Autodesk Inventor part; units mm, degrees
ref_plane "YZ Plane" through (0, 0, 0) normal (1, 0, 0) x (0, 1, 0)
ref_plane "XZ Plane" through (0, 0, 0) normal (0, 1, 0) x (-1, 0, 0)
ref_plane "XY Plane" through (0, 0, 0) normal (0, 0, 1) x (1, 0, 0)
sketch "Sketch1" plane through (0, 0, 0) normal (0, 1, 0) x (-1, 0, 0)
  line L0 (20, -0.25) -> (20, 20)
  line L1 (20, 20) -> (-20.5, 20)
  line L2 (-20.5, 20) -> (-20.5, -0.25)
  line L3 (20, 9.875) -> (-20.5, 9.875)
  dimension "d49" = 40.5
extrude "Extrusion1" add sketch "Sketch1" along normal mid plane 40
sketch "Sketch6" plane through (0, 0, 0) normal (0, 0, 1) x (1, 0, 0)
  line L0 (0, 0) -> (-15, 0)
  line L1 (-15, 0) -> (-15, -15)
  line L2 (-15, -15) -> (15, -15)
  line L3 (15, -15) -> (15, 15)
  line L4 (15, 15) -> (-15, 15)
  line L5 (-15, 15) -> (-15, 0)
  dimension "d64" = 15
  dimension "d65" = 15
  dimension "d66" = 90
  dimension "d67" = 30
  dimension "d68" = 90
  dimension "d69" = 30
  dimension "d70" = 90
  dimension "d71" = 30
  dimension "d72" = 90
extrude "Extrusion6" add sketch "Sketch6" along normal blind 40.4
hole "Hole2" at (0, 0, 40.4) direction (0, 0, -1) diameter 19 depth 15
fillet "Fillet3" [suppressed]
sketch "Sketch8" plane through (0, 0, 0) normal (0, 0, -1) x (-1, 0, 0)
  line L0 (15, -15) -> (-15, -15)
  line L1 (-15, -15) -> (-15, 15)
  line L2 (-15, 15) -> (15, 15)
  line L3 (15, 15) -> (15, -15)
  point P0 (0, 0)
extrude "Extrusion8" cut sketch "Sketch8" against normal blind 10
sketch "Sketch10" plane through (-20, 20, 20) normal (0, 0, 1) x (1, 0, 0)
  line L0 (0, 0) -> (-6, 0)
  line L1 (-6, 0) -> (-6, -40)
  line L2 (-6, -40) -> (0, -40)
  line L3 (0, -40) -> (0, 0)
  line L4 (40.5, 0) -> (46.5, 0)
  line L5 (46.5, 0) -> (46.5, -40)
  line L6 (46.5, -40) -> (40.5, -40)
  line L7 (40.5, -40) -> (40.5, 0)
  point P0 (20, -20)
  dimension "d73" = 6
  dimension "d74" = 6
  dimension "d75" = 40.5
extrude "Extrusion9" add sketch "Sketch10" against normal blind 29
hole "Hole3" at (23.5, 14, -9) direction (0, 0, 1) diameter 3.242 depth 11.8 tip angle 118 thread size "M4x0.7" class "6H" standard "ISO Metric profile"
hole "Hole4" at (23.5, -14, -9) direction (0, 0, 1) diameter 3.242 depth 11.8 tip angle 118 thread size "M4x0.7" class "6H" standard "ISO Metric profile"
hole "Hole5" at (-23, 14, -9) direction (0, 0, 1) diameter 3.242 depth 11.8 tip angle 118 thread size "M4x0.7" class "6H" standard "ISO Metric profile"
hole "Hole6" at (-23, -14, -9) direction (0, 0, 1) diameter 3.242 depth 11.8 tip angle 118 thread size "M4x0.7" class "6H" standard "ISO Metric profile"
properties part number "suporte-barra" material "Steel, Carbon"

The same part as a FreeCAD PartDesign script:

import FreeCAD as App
import Part
import Sketcher
from FreeCAD import Vector

doc = App.newDocument("Part")
params = doc.addObject("Spreadsheet::Sheet", "Params")
for row, (alias, value) in enumerate([
    ("sketch1_width", "40.5 mm"),
    ("pad1_length", "40 mm"),
    ("sketch2_width", "30 mm"),
    ("pad2_length", "40.4 mm"),
    ("sketch3_diameter", "19 mm"),
    ("hole_diameter", "19 mm"),
    ("hole_depth", "15 mm"),
    ("sketch4_width", "30 mm"),
    ("pocket1_length", "10 mm"),
    ("sketch5_width", "6 mm"),
    ("sketch5_height", "40 mm"),
    ("pad3_length", "29 mm"),
    ("hole2_diameter", "3.242 mm"),
    ("hole2_depth", "11.8 mm"),
    ("hole3_diameter", "3.242 mm"),
    ("hole3_depth", "11.8 mm"),
    ("hole4_diameter", "3.242 mm"),
    ("hole4_depth", "11.8 mm"),
    ("hole5_diameter", "3.242 mm"),
    ("hole5_depth", "11.8 mm"),
], start=1):
    params.set(f"A{row}", alias)
    params.set(f"B{row}", "=" + value)
    params.setAlias(f"B{row}", alias)

body = doc.addObject("PartDesign::Body", "Body")

# Sketch on XZ plane
sketch1 = doc.addObject("Sketcher::SketchObject", "Sketch")
body.addObject(sketch1)
sketch1.AttachmentSupport = (doc.XZ_Plane, [""])
sketch1.MapMode = "FlatFace"
sketch1.addGeometry([
    Part.LineSegment(Vector(20.5, 9.875, 0), Vector(-20, 9.875, 0)),
    Part.LineSegment(Vector(-20, 9.875, 0), Vector(-20, 20, 0)),
    Part.LineSegment(Vector(-20, 20, 0), Vector(20.5, 20, 0)),
    Part.LineSegment(Vector(20.5, 20, 0), Vector(20.5, 9.875, 0)),
], False)
sketch1.addConstraint([
    Sketcher.Constraint("Coincident", 0, 2, 1, 1),
    Sketcher.Constraint("Coincident", 1, 2, 2, 1),
    Sketcher.Constraint("Coincident", 2, 2, 3, 1),
    Sketcher.Constraint("Coincident", 3, 2, 0, 1),
    Sketcher.Constraint("Horizontal", 0),
    Sketcher.Constraint("Vertical", 1),
    Sketcher.Constraint("Horizontal", 2),
    Sketcher.Constraint("Vertical", 3),
    Sketcher.Constraint("DistanceX", 0, 2, 0, 1, 40.5),
    Sketcher.Constraint("DistanceX", 0, 2, -1, 1, 20.0),
    Sketcher.Constraint("DistanceY", -1, 1, 1, 2, 20.0),
    Sketcher.Constraint("DistanceY", 1, 1, 1, 2, 10.125),
])
sketch1.setExpression("Constraints[8]", "Params.sketch1_width")
pad1 = doc.addObject("PartDesign::Pad", "Pad")
body.addObject(pad1)
pad1.Profile = sketch1
pad1.setExpression("Length", "Params.pad1_length")
pad1.Midplane = True

# Sketch on XY plane
sketch2 = doc.addObject("Sketcher::SketchObject", "Sketch001")
body.addObject(sketch2)
sketch2.AttachmentSupport = (doc.XY_Plane, [""])
sketch2.MapMode = "FlatFace"
sketch2.addGeometry([
    Part.LineSegment(Vector(-15, 15, 0), Vector(-15, -15, 0)),
    Part.LineSegment(Vector(-15, -15, 0), Vector(15, -15, 0)),
    Part.LineSegment(Vector(15, -15, 0), Vector(15, 15, 0)),
    Part.LineSegment(Vector(15, 15, 0), Vector(-15, 15, 0)),
], False)
sketch2.addConstraint([
    Sketcher.Constraint("Coincident", 0, 2, 1, 1),
    Sketcher.Constraint("Coincident", 1, 2, 2, 1),
    Sketcher.Constraint("Coincident", 2, 2, 3, 1),
    Sketcher.Constraint("Coincident", 3, 2, 0, 1),
    Sketcher.Constraint("Vertical", 0),
    Sketcher.Constraint("Horizontal", 1),
    Sketcher.Constraint("Vertical", 2),
    Sketcher.Constraint("Horizontal", 3),
    Sketcher.Constraint("Symmetric", 0, 2, 2, 2, -1, 1),
    Sketcher.Constraint("Equal", 3, 0),
    Sketcher.Constraint("DistanceX", 1, 1, 1, 2, 30.0),
])
sketch2.setExpression("Constraints[10]", "Params.sketch2_width")
pad2 = doc.addObject("PartDesign::Pad", "Pad001")
body.addObject(pad2)
pad2.Profile = sketch2
pad2.setExpression("Length", "Params.pad2_length")

# Sketch on XY plane
sketch3 = doc.addObject("Sketcher::SketchObject", "Sketch002")
body.addObject(sketch3)
sketch3.AttachmentSupport = (doc.XY_Plane, [""])
sketch3.MapMode = "FlatFace"
sketch3.AttachmentOffset = App.Placement(Vector(0, 0, 40.4), App.Rotation())
sketch3.addGeometry(Part.Circle(Vector(0, 0, 0), Vector(0, 0, 1), 9.5), False)
sketch3.addConstraint([
    Sketcher.Constraint("Coincident", 0, 3, -1, 1),
    Sketcher.Constraint("Diameter", 0, 19.0),
])
sketch3.setExpression("Constraints[1]", "Params.sketch3_diameter")
doc.recompute()
hole = doc.addObject("PartDesign::Hole", "Hole")
body.addObject(hole)
hole.Profile = sketch3
hole.ThreadType = "None"
hole.setExpression("Diameter", "Params.hole_diameter")
hole.DepthType = "Dimension"
hole.setExpression("Depth", "Params.hole_depth")
hole.DrillPoint = "Flat"

# Sketch on XY plane
sketch4 = doc.addObject("Sketcher::SketchObject", "Sketch003")
body.addObject(sketch4)
sketch4.AttachmentSupport = (doc.XY_Plane, [""])
sketch4.MapMode = "FlatFace"
sketch4.addGeometry([
    Part.LineSegment(Vector(15, -15, 0), Vector(-15, -15, 0)),
    Part.LineSegment(Vector(-15, -15, 0), Vector(-15, 15, 0)),
    Part.LineSegment(Vector(-15, 15, 0), Vector(15, 15, 0)),
    Part.LineSegment(Vector(15, 15, 0), Vector(15, -15, 0)),
], False)
sketch4.addConstraint([
    Sketcher.Constraint("Coincident", 0, 2, 1, 1),
    Sketcher.Constraint("Coincident", 1, 2, 2, 1),
    Sketcher.Constraint("Coincident", 2, 2, 3, 1),
    Sketcher.Constraint("Coincident", 3, 2, 0, 1),
    Sketcher.Constraint("Horizontal", 0),
    Sketcher.Constraint("Vertical", 1),
    Sketcher.Constraint("Horizontal", 2),
    Sketcher.Constraint("Vertical", 3),
    Sketcher.Constraint("Symmetric", 0, 2, 2, 2, -1, 1),
    Sketcher.Constraint("Equal", 2, 1),
    Sketcher.Constraint("DistanceX", 0, 2, 0, 1, 30.0),
])
sketch4.setExpression("Constraints[10]", "Params.sketch4_width")
pocket1 = doc.addObject("PartDesign::Pocket", "Pocket")
body.addObject(pocket1)
pocket1.Profile = sketch4
pocket1.setExpression("Length", "Params.pocket1_length")
pocket1.Reversed = True

# Sketch on XY plane
sketch5 = doc.addObject("Sketcher::SketchObject", "Sketch004")
body.addObject(sketch5)
sketch5.AttachmentSupport = (doc.XY_Plane, [""])
sketch5.MapMode = "FlatFace"
sketch5.AttachmentOffset = App.Placement(Vector(0, 0, 20), App.Rotation())
sketch5.addGeometry([
    Part.LineSegment(Vector(-20, -20, 0), Vector(-20, 20, 0)),  # 0
    Part.LineSegment(Vector(-20, 20, 0), Vector(-26, 20, 0)),  # 1
    Part.LineSegment(Vector(-26, 20, 0), Vector(-26, -20, 0)),  # 2
    Part.LineSegment(Vector(-26, -20, 0), Vector(-20, -20, 0)),  # 3
    Part.LineSegment(Vector(26.5, 20, 0), Vector(20.5, 20, 0)),  # 4
    Part.LineSegment(Vector(20.5, 20, 0), Vector(20.5, -20, 0)),  # 5
    Part.LineSegment(Vector(20.5, -20, 0), Vector(26.5, -20, 0)),  # 6
    Part.LineSegment(Vector(26.5, -20, 0), Vector(26.5, 20, 0)),  # 7
], False)
sketch5.addConstraint([
    Sketcher.Constraint("Coincident", 0, 2, 1, 1),
    Sketcher.Constraint("Coincident", 1, 2, 2, 1),
    Sketcher.Constraint("Coincident", 2, 2, 3, 1),
    Sketcher.Constraint("Coincident", 3, 2, 0, 1),
    Sketcher.Constraint("Coincident", 4, 2, 5, 1),
    Sketcher.Constraint("Coincident", 5, 2, 6, 1),
    Sketcher.Constraint("Coincident", 6, 2, 7, 1),
    Sketcher.Constraint("Coincident", 7, 2, 4, 1),
    Sketcher.Constraint("Vertical", 0),
    Sketcher.Constraint("Horizontal", 1),
    Sketcher.Constraint("Vertical", 2),
    Sketcher.Constraint("Horizontal", 3),
    Sketcher.Constraint("Horizontal", 4),
    Sketcher.Constraint("Vertical", 5),
    Sketcher.Constraint("Horizontal", 6),
    Sketcher.Constraint("Vertical", 7),
    Sketcher.Constraint("Horizontal", 1, 2, 4, 2),
    Sketcher.Constraint("Horizontal", 3, 2, 5, 2),
    Sketcher.Constraint("Equal", 3, 4),
    Sketcher.Constraint("DistanceX", 1, 2, 1, 1, 6.0),
    Sketcher.Constraint("DistanceX", 0, 2, 4, 2, 40.5),
    Sketcher.Constraint("DistanceY", 0, 1, 0, 2, 40.0),
    Sketcher.Constraint("DistanceX", 0, 2, -1, 1, 20.0),
    Sketcher.Constraint("DistanceY", -1, 1, 0, 2, 20.0),
])
sketch5.setExpression("Constraints[19]", "Params.sketch5_width")
sketch5.setExpression("Constraints[21]", "Params.sketch5_height")
pad3 = doc.addObject("PartDesign::Pad", "Pad002")
body.addObject(pad3)
pad3.Profile = sketch5
pad3.setExpression("Length", "Params.pad3_length")
pad3.Reversed = True

# Sketch on XY plane
sketch6 = doc.addObject("Sketcher::SketchObject", "Sketch005")
body.addObject(sketch6)
sketch6.AttachmentSupport = (doc.XY_Plane, [""])
sketch6.MapMode = "FlatFace"
sketch6.AttachmentOffset = App.Placement(Vector(0, 0, -9), App.Rotation())
sketch6.addGeometry(Part.Circle(Vector(23.5, 14, 0), Vector(0, 0, 1), 1.621), False)
sketch6.addConstraint([
    Sketcher.Constraint("Diameter", 0, 3.242),
    Sketcher.Constraint("DistanceY", -1, 1, 0, 3, 14.0),
    Sketcher.Constraint("DistanceX", -1, 1, 0, 3, 23.5),
])
doc.recompute()
hole2 = doc.addObject("PartDesign::Hole", "Hole001")
body.addObject(hole2)
hole2.Profile = sketch6
hole2.ThreadType = "None"
hole2.setExpression("Diameter", "Params.hole2_diameter")
hole2.DepthType = "Dimension"
hole2.setExpression("Depth", "Params.hole2_depth")
hole2.DrillPoint = "Angled"
hole2.DrillPointAngle = 118
hole2.Reversed = True

# Sketch on XY plane
sketch7 = doc.addObject("Sketcher::SketchObject", "Sketch006")
body.addObject(sketch7)
sketch7.AttachmentSupport = (doc.XY_Plane, [""])
sketch7.MapMode = "FlatFace"
sketch7.AttachmentOffset = App.Placement(Vector(0, 0, -9), App.Rotation())
sketch7.addGeometry(Part.Circle(Vector(23.5, -14, 0), Vector(0, 0, 1), 1.621), False)
sketch7.addConstraint([
    Sketcher.Constraint("Diameter", 0, 3.242),
    Sketcher.Constraint("DistanceY", 0, 3, -1, 1, 14.0),
    Sketcher.Constraint("DistanceX", -1, 1, 0, 3, 23.5),
])
doc.recompute()
hole3 = doc.addObject("PartDesign::Hole", "Hole002")
body.addObject(hole3)
hole3.Profile = sketch7
hole3.ThreadType = "None"
hole3.setExpression("Diameter", "Params.hole3_diameter")
hole3.DepthType = "Dimension"
hole3.setExpression("Depth", "Params.hole3_depth")
hole3.DrillPoint = "Angled"
hole3.DrillPointAngle = 118
hole3.Reversed = True

# Sketch on XY plane
sketch8 = doc.addObject("Sketcher::SketchObject", "Sketch007")
body.addObject(sketch8)
sketch8.AttachmentSupport = (doc.XY_Plane, [""])
sketch8.MapMode = "FlatFace"
sketch8.AttachmentOffset = App.Placement(Vector(0, 0, -9), App.Rotation())
sketch8.addGeometry(Part.Circle(Vector(-23, 14, 0), Vector(0, 0, 1), 1.621), False)
sketch8.addConstraint([
    Sketcher.Constraint("Diameter", 0, 3.242),
    Sketcher.Constraint("DistanceX", 0, 3, -1, 1, 23.0),
    Sketcher.Constraint("DistanceY", -1, 1, 0, 3, 14.0),
])
doc.recompute()
hole4 = doc.addObject("PartDesign::Hole", "Hole003")
body.addObject(hole4)
hole4.Profile = sketch8
hole4.ThreadType = "None"
hole4.setExpression("Diameter", "Params.hole4_diameter")
hole4.DepthType = "Dimension"
hole4.setExpression("Depth", "Params.hole4_depth")
hole4.DrillPoint = "Angled"
hole4.DrillPointAngle = 118
hole4.Reversed = True

# Sketch on XY plane
sketch9 = doc.addObject("Sketcher::SketchObject", "Sketch008")
body.addObject(sketch9)
sketch9.AttachmentSupport = (doc.XY_Plane, [""])
sketch9.MapMode = "FlatFace"
sketch9.AttachmentOffset = App.Placement(Vector(0, 0, -9), App.Rotation())
sketch9.addGeometry(Part.Circle(Vector(-23, -14, 0), Vector(0, 0, 1), 1.621), False)
sketch9.addConstraint([
    Sketcher.Constraint("Diameter", 0, 3.242),
    Sketcher.Constraint("DistanceX", 0, 3, -1, 1, 23.0),
    Sketcher.Constraint("DistanceY", 0, 3, -1, 1, 14.0),
])
doc.recompute()
hole5 = doc.addObject("PartDesign::Hole", "Hole004")
body.addObject(hole5)
hole5.Profile = sketch9
hole5.ThreadType = "None"
hole5.setExpression("Diameter", "Params.hole5_diameter")
hole5.DepthType = "Dimension"
hole5.setExpression("Depth", "Params.hole5_depth")
hole5.DrillPoint = "Angled"
hole5.DrillPointAngle = 118
hole5.Reversed = True

doc.recompute()
